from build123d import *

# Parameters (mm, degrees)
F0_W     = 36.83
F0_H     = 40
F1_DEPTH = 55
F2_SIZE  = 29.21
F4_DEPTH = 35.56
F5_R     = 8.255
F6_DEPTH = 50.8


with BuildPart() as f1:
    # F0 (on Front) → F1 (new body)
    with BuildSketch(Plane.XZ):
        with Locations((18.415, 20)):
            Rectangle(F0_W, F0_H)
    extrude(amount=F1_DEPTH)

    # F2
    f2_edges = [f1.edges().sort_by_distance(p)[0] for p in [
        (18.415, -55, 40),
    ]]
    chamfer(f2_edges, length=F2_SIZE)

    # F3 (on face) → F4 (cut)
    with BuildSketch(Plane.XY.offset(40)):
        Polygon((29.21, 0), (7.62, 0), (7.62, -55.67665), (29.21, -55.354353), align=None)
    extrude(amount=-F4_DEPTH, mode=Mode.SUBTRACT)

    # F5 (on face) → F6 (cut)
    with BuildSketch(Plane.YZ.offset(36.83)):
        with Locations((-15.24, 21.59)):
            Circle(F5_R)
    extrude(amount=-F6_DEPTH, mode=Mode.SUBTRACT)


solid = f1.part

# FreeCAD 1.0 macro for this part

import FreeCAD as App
import Part
import Sketcher
from FreeCAD import Vector
Q = App.Units.Quantity


def edges_at(feature, points):
    """Names of the edges that pass closest to the given points."""
    edges = feature.Shape.Edges
    near = lambda p: min(range(len(edges)), key=lambda i: edges[i].distToShape(Part.Vertex(*p))[0])
    return sorted({f"Edge{near(p) + 1}" for p in points})

doc = App.newDocument("Part")
body = doc.addObject("PartDesign::Body", "Body")

# Sketch on XZ plane
sketch1 = doc.addObject("Sketcher::SketchObject", "Sketch")
body.addObject(sketch1)
sketch1.AttachmentSupport = (doc.XZ_Plane, [""])
sketch1.MapMode = "FlatFace"
sketch1.addGeometry([
    Part.LineSegment(Vector(0, 40, 0), Vector(0, 0, 0)),
    Part.LineSegment(Vector(0, 0, 0), Vector(37, 0, 0)),
    Part.LineSegment(Vector(37, 0, 0), Vector(37, 40, 0)),
    Part.LineSegment(Vector(37, 40, 0), Vector(0, 40, 0)),
], False)
sketch1.addConstraint([
    Sketcher.Constraint("Coincident", 0, 2, 1, 1),
    Sketcher.Constraint("Coincident", 1, 2, 2, 1),
    Sketcher.Constraint("Coincident", 2, 2, 3, 1),
    Sketcher.Constraint("Coincident", 3, 2, 0, 1),
    Sketcher.Constraint("Vertical", 0),
    Sketcher.Constraint("Horizontal", 1),
    Sketcher.Constraint("Vertical", 2),
    Sketcher.Constraint("Horizontal", 3),
    Sketcher.Constraint("Coincident", 0, 2, -1, 1),
    Sketcher.Constraint("DistanceX", 1, 1, 1, 2, Q("1.45 in")),
    Sketcher.Constraint("DistanceY", 0, 2, 0, 1, Q("40 mm")),
])
pad1 = doc.addObject("PartDesign::Pad", "Pad")
body.addObject(pad1)
pad1.Profile = sketch1
pad1.Length = 55
doc.recompute()

chamfer = doc.addObject("PartDesign::Chamfer", "Chamfer")
body.addObject(chamfer)
chamfer.Base = (pad1, edges_at(pad1, [(18.415, -55, 40)]))
chamfer.Size = Q("1.15 in")

# Sketch on XY plane
sketch2 = doc.addObject("Sketcher::SketchObject", "Sketch001")
body.addObject(sketch2)
sketch2.AttachmentSupport = (doc.XY_Plane, [""])
sketch2.MapMode = "FlatFace"
sketch2.AttachmentOffset = App.Placement(Vector(0, 0, 40), App.Rotation())
sketch2.addGeometry([
    Part.LineSegment(Vector(29, 0, 0), Vector(8, 0, 0)),
    Part.LineSegment(Vector(8, 0, 0), Vector(8, -56, 0)),
    Part.LineSegment(Vector(8, -56, 0), Vector(29, -55, 0)),
    Part.LineSegment(Vector(29, -55, 0), Vector(29, 0, 0)),
], False)
sketch2.addConstraint([
    Sketcher.Constraint("Coincident", 0, 2, 1, 1),
    Sketcher.Constraint("Coincident", 1, 2, 2, 1),
    Sketcher.Constraint("Coincident", 2, 2, 3, 1),
    Sketcher.Constraint("Coincident", 3, 2, 0, 1),
    Sketcher.Constraint("Horizontal", 0),
    Sketcher.Constraint("Vertical", 1),
    Sketcher.Constraint("Vertical", 3),
    Sketcher.Constraint("PointOnObject", 0, 2, -1),
    Sketcher.Constraint("DistanceX", 0, 2, 0, 1, Q("0.85 in")),
    Sketcher.Constraint("DistanceX", -1, 1, 0, 2, Q("0.3 in")),
    Sketcher.Constraint("DistanceY", 1, 2, 1, 1, Q("55.67665 mm")),
    Sketcher.Constraint("DistanceY", 3, 1, 3, 2, Q("55.354353 mm")),
])
pocket1 = doc.addObject("PartDesign::Pocket", "Pocket")
body.addObject(pocket1)
pocket1.Profile = sketch2
pocket1.Length = Q("1.4 in")

# Sketch on YZ plane
sketch3 = doc.addObject("Sketcher::SketchObject", "Sketch002")
body.addObject(sketch3)
sketch3.AttachmentSupport = (doc.YZ_Plane, [""])
sketch3.MapMode = "FlatFace"
sketch3.AttachmentOffset = App.Placement(Vector(0, 0, 1.45 * 25.4), App.Rotation())
sketch3.addGeometry(Part.Circle(Vector(-15, 22, 0), Vector(0, 0, 1), 8), False)
sketch3.addConstraint([
    Sketcher.Constraint("Diameter", 0, Q("0.65 in")),
    Sketcher.Constraint("DistanceX", 0, 3, -1, 1, Q("0.6 in")),
    Sketcher.Constraint("DistanceY", -1, 1, 0, 3, Q("0.85 in")),
])
pocket2 = doc.addObject("PartDesign::Pocket", "Pocket001")
body.addObject(pocket2)
pocket2.Profile = sketch3
pocket2.Length = Q("2 in")

doc.recompute()
